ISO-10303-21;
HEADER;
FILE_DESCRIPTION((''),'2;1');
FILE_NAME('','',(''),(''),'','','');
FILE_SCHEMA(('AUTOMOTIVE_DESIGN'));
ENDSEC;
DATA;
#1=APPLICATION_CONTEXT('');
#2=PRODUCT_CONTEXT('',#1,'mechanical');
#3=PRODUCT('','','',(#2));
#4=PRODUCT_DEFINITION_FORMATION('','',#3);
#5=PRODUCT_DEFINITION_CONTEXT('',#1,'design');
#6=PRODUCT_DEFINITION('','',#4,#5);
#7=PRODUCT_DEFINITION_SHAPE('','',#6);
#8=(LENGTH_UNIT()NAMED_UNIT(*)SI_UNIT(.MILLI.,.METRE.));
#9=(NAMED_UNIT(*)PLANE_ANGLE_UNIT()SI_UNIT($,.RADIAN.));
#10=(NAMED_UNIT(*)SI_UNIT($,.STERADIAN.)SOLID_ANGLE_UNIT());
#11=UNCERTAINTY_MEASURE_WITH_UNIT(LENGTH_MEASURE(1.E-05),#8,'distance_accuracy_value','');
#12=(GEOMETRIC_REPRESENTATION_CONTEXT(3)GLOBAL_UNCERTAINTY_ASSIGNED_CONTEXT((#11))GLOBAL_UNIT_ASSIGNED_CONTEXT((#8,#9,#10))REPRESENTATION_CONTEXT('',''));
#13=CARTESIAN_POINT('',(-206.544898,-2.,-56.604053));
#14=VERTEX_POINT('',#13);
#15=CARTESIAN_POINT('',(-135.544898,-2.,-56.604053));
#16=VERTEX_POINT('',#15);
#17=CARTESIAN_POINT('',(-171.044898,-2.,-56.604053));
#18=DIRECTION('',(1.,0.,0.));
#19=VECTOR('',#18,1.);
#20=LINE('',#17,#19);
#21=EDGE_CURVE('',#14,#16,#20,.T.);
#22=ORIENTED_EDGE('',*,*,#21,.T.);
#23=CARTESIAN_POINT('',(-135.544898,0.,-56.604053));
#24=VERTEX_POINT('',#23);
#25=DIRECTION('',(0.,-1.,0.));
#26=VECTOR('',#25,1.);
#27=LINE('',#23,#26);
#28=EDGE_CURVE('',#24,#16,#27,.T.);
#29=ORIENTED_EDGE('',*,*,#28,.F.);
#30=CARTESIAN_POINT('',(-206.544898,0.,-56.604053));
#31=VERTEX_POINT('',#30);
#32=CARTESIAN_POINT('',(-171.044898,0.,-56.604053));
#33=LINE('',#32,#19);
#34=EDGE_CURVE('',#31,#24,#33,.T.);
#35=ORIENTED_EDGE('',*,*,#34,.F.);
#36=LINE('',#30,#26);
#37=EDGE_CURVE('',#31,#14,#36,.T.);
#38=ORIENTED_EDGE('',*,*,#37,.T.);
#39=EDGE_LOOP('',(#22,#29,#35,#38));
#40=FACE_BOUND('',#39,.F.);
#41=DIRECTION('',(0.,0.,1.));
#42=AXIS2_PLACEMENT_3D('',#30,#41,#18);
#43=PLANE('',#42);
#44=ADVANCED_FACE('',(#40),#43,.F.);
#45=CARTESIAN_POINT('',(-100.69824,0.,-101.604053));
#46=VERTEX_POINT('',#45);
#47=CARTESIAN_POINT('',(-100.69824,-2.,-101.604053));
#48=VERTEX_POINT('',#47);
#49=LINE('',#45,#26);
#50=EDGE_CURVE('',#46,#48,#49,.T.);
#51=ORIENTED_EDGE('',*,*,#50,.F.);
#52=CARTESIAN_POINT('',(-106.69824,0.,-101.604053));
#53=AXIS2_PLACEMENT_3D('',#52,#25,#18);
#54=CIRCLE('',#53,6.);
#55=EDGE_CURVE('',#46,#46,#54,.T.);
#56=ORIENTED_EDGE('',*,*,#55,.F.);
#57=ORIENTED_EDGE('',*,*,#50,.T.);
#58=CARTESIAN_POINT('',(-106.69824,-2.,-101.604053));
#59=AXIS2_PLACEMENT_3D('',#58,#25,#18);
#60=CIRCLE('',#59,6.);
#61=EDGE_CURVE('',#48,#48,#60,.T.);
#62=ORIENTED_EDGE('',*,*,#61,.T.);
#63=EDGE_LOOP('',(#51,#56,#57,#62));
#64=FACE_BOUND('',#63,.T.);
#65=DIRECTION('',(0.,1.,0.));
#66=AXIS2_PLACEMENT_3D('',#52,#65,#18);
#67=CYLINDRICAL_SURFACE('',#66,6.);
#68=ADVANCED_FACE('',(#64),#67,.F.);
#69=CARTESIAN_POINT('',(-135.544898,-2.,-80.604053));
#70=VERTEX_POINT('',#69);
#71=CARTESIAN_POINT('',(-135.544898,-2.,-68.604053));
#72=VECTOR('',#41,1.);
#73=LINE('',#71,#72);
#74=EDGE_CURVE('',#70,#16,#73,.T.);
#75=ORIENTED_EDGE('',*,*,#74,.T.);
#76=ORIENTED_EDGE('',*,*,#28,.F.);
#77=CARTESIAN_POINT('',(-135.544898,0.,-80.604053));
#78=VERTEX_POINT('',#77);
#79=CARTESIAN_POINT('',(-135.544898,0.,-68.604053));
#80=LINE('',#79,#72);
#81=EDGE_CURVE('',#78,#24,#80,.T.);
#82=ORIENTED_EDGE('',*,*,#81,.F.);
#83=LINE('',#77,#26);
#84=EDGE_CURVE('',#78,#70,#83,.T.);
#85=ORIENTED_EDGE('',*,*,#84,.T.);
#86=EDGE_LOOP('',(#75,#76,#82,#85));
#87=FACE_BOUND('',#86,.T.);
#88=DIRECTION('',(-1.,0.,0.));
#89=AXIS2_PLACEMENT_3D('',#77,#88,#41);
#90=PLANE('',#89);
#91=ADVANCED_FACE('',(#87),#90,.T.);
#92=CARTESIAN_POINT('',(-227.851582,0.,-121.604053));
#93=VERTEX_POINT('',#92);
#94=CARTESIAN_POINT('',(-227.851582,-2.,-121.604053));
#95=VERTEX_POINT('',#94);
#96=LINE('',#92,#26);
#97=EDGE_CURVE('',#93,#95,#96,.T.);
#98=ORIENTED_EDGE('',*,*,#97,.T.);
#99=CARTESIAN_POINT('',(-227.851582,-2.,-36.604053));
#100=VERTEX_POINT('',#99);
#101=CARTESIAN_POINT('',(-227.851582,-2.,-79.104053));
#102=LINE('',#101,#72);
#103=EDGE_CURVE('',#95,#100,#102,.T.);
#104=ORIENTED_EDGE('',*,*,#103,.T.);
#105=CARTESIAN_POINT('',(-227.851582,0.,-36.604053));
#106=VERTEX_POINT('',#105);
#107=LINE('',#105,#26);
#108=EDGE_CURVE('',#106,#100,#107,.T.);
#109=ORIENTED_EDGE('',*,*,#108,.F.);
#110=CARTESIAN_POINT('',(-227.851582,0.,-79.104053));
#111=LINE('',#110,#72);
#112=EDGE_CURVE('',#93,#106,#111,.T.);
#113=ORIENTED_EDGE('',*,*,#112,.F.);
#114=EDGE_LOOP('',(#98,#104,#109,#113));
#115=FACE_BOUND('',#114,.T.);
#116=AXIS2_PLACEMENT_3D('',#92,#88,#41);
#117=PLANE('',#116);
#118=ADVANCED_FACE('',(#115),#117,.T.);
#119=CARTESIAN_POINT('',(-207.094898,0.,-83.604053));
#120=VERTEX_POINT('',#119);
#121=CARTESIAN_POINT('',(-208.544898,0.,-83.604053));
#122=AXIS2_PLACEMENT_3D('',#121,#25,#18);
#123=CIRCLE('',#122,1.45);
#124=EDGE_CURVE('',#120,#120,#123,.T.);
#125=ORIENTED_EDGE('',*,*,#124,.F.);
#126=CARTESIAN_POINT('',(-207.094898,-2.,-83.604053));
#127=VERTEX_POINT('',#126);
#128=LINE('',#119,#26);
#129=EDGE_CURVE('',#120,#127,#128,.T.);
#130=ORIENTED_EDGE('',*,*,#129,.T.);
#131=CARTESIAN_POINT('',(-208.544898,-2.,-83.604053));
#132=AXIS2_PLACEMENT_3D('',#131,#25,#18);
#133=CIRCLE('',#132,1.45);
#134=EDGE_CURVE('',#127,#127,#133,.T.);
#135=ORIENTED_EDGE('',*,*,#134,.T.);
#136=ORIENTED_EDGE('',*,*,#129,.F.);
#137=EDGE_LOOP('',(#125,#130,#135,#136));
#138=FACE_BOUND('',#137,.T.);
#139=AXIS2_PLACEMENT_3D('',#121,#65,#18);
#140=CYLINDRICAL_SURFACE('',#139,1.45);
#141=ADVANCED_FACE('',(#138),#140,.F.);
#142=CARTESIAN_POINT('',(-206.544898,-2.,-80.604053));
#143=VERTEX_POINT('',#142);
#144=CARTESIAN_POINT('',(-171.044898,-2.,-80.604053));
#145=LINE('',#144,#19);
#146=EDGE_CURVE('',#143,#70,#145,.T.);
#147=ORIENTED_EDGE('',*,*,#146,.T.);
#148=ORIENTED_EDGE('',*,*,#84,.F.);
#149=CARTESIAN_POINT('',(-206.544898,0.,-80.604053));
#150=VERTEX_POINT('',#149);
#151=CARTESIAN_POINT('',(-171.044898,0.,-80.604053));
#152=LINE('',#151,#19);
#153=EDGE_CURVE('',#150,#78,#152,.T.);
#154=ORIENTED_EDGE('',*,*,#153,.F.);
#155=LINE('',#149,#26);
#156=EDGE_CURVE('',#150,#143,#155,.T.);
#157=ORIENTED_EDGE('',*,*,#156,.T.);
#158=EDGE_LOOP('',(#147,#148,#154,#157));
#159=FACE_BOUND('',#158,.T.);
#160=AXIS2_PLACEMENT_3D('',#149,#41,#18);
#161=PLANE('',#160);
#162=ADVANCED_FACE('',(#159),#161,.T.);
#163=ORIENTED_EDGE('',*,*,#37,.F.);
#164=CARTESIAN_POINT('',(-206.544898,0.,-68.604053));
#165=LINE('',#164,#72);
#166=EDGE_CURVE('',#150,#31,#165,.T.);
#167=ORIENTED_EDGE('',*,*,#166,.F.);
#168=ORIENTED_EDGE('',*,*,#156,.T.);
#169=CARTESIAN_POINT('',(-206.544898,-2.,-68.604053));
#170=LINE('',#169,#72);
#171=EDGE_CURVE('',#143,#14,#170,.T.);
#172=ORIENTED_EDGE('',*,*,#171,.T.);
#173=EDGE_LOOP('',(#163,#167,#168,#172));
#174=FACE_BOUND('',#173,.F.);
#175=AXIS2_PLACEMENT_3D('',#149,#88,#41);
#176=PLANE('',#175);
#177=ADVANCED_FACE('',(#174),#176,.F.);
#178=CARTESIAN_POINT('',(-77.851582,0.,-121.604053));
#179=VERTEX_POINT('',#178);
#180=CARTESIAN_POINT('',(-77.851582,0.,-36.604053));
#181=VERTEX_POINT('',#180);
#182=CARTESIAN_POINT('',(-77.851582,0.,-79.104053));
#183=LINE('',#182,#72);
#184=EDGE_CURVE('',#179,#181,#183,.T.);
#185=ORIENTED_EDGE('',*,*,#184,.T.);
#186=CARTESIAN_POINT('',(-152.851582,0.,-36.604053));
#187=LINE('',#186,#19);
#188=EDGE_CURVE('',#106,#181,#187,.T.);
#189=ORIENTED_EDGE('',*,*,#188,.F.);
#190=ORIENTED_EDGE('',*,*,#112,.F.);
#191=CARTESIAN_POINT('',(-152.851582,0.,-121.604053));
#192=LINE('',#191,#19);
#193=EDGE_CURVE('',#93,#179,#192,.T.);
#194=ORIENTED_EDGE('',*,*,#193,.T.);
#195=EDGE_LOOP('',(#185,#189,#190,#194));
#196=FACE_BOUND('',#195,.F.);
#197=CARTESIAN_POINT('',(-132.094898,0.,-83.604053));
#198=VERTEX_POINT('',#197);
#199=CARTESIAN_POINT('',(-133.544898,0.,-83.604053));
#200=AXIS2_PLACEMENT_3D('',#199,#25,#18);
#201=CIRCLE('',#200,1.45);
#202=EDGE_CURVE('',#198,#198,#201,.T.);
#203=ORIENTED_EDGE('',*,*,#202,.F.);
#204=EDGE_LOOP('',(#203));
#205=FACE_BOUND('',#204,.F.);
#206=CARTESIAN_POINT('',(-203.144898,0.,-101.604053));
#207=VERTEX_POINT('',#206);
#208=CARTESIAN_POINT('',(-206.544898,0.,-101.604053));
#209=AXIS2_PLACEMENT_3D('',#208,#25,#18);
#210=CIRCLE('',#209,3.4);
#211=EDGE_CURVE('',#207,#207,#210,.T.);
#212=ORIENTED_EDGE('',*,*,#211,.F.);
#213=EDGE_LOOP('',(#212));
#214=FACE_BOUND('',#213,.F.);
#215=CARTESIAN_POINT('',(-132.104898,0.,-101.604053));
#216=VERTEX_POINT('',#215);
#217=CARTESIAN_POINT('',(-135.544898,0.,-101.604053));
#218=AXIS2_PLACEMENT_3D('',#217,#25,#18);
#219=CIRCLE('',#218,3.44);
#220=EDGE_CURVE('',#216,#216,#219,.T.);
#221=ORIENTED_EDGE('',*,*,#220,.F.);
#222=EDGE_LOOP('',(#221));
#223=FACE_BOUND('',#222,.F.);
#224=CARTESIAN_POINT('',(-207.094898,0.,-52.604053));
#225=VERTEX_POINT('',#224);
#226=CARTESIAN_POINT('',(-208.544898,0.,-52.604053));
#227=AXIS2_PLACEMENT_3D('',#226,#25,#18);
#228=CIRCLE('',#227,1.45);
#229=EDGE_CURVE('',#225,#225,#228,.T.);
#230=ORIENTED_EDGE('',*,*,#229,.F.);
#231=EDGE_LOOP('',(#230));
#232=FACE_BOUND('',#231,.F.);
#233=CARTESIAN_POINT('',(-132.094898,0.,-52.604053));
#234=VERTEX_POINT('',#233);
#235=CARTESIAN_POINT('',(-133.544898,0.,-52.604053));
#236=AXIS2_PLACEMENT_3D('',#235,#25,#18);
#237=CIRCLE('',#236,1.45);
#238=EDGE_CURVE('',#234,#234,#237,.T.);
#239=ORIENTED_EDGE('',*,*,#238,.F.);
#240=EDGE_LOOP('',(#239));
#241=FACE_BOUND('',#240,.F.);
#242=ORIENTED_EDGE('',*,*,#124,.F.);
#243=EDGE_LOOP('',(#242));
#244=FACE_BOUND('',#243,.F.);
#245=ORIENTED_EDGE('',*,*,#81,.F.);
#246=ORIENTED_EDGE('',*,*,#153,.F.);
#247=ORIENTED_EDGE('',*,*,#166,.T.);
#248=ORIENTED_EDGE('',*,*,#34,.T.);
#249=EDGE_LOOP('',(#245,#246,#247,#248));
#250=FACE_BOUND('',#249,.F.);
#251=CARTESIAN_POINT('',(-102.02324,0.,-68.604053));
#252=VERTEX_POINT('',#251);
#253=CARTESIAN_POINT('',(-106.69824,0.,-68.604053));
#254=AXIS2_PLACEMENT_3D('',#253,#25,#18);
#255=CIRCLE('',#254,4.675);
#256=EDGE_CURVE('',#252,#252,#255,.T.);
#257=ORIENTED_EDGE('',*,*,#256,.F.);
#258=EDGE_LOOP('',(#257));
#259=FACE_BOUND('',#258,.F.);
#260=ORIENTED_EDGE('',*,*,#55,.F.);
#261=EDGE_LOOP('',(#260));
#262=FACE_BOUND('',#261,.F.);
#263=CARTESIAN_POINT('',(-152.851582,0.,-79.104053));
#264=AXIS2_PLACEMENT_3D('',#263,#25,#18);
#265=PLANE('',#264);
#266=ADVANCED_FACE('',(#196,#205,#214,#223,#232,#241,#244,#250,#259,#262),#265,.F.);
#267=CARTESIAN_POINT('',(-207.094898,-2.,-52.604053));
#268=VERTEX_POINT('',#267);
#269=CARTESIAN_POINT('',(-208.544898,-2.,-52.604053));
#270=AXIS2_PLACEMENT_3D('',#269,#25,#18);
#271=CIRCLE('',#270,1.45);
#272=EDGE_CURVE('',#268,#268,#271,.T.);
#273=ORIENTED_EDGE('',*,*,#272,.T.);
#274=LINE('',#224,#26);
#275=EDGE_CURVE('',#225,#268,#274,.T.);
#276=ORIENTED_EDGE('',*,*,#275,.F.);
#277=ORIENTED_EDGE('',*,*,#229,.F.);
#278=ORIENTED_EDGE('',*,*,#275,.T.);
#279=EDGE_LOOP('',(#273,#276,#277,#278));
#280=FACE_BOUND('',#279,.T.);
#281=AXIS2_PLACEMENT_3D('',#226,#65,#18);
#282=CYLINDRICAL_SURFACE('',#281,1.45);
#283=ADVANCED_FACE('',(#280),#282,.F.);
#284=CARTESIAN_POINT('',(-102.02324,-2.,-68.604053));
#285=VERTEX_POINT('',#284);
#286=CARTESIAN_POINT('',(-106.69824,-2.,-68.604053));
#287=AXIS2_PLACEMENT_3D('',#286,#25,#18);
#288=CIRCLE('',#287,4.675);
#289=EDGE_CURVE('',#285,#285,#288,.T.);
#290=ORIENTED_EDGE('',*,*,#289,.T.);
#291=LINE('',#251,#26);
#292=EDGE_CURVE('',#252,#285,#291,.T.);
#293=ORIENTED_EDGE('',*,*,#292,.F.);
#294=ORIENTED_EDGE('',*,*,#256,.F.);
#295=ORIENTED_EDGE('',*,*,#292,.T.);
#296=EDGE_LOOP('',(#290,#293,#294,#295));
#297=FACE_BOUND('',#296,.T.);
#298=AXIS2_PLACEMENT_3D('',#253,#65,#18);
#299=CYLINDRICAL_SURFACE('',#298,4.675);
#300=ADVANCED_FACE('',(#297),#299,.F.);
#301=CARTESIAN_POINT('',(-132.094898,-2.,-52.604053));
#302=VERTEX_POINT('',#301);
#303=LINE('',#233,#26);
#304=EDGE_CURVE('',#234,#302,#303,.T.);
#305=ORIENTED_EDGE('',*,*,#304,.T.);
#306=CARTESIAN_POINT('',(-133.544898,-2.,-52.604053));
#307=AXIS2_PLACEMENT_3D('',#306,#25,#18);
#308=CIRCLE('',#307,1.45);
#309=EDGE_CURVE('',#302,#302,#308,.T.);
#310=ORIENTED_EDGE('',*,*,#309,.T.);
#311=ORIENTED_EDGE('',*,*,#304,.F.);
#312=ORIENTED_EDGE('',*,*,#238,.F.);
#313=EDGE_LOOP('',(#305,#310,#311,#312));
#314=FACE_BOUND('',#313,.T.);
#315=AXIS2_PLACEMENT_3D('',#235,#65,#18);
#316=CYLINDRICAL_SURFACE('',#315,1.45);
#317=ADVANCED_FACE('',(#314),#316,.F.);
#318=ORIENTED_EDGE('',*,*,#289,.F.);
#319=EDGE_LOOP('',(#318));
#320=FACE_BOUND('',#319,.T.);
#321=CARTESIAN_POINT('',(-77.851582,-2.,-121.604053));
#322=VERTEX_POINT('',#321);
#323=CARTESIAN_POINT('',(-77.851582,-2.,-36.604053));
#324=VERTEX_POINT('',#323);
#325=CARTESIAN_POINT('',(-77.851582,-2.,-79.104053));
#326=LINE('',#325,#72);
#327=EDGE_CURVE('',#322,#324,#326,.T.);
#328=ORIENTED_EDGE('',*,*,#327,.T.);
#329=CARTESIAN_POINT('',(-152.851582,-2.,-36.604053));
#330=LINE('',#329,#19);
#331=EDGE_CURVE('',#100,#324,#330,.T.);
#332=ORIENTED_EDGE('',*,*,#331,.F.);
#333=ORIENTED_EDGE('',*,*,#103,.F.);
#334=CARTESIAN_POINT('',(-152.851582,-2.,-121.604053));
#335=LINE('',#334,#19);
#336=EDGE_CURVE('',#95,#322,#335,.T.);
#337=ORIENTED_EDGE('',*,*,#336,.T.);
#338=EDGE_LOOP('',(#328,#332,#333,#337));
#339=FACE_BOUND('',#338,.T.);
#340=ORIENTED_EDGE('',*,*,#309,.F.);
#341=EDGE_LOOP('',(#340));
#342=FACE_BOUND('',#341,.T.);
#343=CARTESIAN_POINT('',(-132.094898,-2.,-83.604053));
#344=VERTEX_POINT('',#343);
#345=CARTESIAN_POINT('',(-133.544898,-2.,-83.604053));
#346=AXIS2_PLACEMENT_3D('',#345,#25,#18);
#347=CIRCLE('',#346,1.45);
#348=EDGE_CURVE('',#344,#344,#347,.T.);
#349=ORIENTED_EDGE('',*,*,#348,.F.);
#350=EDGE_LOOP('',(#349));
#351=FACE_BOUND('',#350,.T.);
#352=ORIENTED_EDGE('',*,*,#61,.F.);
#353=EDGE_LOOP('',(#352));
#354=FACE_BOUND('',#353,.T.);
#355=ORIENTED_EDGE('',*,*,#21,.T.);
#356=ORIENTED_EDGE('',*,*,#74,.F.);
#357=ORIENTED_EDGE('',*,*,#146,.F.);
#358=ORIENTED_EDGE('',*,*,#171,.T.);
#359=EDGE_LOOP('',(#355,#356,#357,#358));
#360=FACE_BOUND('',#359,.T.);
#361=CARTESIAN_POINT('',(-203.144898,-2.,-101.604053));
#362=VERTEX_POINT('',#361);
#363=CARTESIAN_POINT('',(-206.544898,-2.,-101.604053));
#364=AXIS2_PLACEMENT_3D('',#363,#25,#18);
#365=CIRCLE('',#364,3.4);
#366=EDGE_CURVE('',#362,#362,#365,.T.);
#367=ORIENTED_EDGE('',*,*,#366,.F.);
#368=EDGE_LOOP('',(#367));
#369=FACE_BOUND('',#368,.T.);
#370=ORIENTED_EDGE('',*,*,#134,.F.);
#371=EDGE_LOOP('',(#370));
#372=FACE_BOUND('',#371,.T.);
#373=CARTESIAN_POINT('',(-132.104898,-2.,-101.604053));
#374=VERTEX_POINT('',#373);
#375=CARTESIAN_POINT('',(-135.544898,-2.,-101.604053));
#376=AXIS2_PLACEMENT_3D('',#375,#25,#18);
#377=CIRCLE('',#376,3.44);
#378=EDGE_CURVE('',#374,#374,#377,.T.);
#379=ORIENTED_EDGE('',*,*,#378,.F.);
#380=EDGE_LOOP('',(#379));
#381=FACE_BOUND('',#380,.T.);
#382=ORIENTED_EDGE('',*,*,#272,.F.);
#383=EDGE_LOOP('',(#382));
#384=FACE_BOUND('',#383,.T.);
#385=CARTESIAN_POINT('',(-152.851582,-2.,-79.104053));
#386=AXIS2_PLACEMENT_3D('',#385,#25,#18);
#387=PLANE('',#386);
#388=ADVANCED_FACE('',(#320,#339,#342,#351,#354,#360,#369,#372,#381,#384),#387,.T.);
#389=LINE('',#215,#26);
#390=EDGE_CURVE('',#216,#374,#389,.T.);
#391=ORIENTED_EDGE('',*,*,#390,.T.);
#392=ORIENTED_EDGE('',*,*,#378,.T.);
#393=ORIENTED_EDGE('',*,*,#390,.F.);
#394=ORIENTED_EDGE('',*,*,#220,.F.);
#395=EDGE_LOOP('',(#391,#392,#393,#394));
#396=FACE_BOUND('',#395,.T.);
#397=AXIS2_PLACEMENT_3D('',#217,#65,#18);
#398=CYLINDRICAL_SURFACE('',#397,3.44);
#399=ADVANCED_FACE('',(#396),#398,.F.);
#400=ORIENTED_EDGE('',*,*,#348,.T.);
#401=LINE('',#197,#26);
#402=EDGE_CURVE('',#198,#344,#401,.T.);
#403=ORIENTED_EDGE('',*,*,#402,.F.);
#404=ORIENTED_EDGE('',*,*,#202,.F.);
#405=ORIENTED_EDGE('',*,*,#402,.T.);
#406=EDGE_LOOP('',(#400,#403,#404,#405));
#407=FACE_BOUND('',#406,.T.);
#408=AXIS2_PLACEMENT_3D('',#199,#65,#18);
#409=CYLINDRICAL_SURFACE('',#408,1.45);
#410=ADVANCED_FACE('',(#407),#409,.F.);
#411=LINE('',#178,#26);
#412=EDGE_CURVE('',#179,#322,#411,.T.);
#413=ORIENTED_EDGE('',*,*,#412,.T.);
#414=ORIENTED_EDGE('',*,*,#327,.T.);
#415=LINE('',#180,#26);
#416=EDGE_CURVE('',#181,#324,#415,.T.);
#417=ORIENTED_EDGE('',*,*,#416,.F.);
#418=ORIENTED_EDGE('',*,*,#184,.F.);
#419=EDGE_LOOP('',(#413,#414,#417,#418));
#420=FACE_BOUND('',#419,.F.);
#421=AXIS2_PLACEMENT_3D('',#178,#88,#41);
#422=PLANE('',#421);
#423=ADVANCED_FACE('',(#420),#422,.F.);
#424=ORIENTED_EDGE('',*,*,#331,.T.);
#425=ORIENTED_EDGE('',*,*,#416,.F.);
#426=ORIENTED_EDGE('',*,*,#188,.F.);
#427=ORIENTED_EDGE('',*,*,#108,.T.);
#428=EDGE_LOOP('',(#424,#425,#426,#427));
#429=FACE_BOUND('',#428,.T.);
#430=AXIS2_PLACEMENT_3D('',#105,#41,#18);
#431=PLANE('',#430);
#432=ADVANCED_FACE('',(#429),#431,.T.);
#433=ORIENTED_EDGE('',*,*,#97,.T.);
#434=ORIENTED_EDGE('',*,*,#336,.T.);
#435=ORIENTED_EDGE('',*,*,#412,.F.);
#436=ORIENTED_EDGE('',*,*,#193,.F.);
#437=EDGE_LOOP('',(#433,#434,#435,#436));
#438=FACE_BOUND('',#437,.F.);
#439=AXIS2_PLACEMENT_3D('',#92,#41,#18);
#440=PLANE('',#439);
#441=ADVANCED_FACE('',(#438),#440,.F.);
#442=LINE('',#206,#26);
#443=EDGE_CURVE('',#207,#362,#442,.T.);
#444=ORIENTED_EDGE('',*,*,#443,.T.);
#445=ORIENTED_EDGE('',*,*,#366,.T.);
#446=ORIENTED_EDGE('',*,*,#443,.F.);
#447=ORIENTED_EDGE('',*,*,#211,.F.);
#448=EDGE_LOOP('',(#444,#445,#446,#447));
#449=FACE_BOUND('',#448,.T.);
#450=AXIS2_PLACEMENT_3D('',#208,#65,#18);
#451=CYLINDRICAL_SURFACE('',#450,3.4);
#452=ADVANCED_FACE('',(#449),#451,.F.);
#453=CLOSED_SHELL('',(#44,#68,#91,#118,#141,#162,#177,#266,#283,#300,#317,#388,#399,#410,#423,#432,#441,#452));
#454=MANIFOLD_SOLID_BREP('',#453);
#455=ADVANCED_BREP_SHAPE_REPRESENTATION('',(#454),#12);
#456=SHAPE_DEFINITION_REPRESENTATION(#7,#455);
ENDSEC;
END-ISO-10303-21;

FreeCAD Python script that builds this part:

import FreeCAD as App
import Part
import Sketcher
from FreeCAD import Vector
Q = App.Units.Quantity


def add_polygon(sketch, points):
    """Adds a closed chain of lines whose ends are joined by coincident constraints."""
    first, n = sketch.GeometryCount, len(points)
    for a, b in zip(points, points[1:] + points[:1]):
        sketch.addGeometry(Part.LineSegment(App.Vector(*a, 0), App.Vector(*b, 0)), False)
    for i in range(n):
        sketch.addConstraint(Sketcher.Constraint("Coincident", first + i, 2, first + (i + 1) % n, 1))

doc = App.newDocument("Part")
body = doc.addObject("PartDesign::Body", "Body")

sketch1 = body.newObject("Sketcher::SketchObject", "Sketch")
sketch1.AttachmentSupport = (doc.getObject("XZ_Plane"), [""])
sketch1.MapMode = "FlatFace"
add_polygon(sketch1, [(-227.9, -36.6), (-227.9, -121.6), (-77.9, -121.6), (-77.9, -36.6)])
sketch1.addGeometry(Part.Circle(Vector(-206.5, -101.6, 0), Vector(0, 0, 1), 3.4), False)
sketch1.addGeometry(Part.Circle(Vector(-208.5, -83.6, 0), Vector(0, 0, 1), 1.4), False)
sketch1.addGeometry(Part.Circle(Vector(-135.5, -101.6, 0), Vector(0, 0, 1), 3.4), False)
sketch1.addGeometry(Part.Circle(Vector(-106.7, -101.6, 0), Vector(0, 0, 1), 6), False)
sketch1.addGeometry(Part.Circle(Vector(-133.5, -83.6, 0), Vector(0, 0, 1), 1.4), False)
add_polygon(sketch1, [(-135.5, -80.6), (-206.5, -80.6), (-206.5, -56.6), (-135.5, -56.6)])
sketch1.addGeometry(Part.Circle(Vector(-208.5, -52.6, 0), Vector(0, 0, 1), 1.4), False)
sketch1.addGeometry(Part.Circle(Vector(-106.7, -68.6, 0), Vector(0, 0, 1), 4.7), False)
sketch1.addGeometry(Part.Circle(Vector(-133.5, -52.6, 0), Vector(0, 0, 1), 1.4), False)
sketch1.addConstraint([
    Sketcher.Constraint("Vertical", 0),
    Sketcher.Constraint("Horizontal", 1),
    Sketcher.Constraint("Vertical", 2),
    Sketcher.Constraint("Horizontal", 3),
    Sketcher.Constraint("Horizontal", 9),
    Sketcher.Constraint("Vertical", 10),
    Sketcher.Constraint("Horizontal", 11),
    Sketcher.Constraint("Vertical", 12),
    Sketcher.Constraint("Equal", 5, 8),
    Sketcher.Constraint("Equal", 8, 13),
    Sketcher.Constraint("Equal", 13, 15),
    Sketcher.Constraint("Horizontal", 4, 3, 6, 3),
    Sketcher.Constraint("Horizontal", 6, 3, 7, 3),
    Sketcher.Constraint("Horizontal", 5, 3, 8, 3),
    Sketcher.Constraint("Horizontal", 13, 3, 15, 3),
    Sketcher.Constraint("Vertical", 5, 3, 13, 3),
    Sketcher.Constraint("Vertical", 7, 3, 14, 3),
    Sketcher.Constraint("Vertical", 8, 3, 15, 3),
    Sketcher.Constraint("Vertical", 4, 3, 9, 2),
    Sketcher.Constraint("Vertical", 6, 3, 11, 2),
    Sketcher.Constraint("Diameter", 7, Q("12 mm")),
    Sketcher.Constraint("Diameter", 4, Q("6.8 mm")),
    Sketcher.Constraint("Diameter", 5, Q("2.9 mm")),
    Sketcher.Constraint("Diameter", 6, Q("6.88 mm")),
    Sketcher.Constraint("Diameter", 14, Q("9.35 mm")),
    Sketcher.Constraint("DistanceX", 1, 1, 1, 2, Q("150 mm")),
    Sketcher.Constraint("DistanceX", 9, 2, 9, 1, Q("71 mm")),
    Sketcher.Constraint("DistanceY", 0, 2, 0, 1, Q("85 mm")),
    Sketcher.Constraint("DistanceY", 10, 1, 10, 2, Q("24 mm")),
    Sketcher.Constraint("DistanceX", 5, 3, 4, 3, Q("2 mm")),
    Sketcher.Constraint("DistanceY", 4, 3, 5, 3, Q("18 mm")),
    Sketcher.Constraint("DistanceX", 6, 3, 8, 3, Q("2 mm")),
    Sketcher.Constraint("DistanceY", 5, 3, 13, 3, Q("31 mm")),
    Sketcher.Constraint("DistanceY", 8, 3, 14, 3, Q("15 mm")),
    Sketcher.Constraint("DistanceY", 0, 2, 4, 3, Q("20 mm")),
    Sketcher.Constraint("DistanceY", 5, 3, 9, 2, Q("3 mm")),
    Sketcher.Constraint("DistanceX", 7, 3, -1, 1, Q("106.69824 mm")),
    Sketcher.Constraint("DistanceX", 0, 2, -1, 1, Q("227.851582 mm")),
    Sketcher.Constraint("DistanceX", 4, 3, -1, 1, Q("206.544898 mm")),
    Sketcher.Constraint("DistanceY", 4, 3, -1, 1, Q("101.604053 mm")),
])
pad1 = body.newObject("PartDesign::Pad", "Pad")
pad1.Profile = sketch1
pad1.Length = 2

doc.recompute()
